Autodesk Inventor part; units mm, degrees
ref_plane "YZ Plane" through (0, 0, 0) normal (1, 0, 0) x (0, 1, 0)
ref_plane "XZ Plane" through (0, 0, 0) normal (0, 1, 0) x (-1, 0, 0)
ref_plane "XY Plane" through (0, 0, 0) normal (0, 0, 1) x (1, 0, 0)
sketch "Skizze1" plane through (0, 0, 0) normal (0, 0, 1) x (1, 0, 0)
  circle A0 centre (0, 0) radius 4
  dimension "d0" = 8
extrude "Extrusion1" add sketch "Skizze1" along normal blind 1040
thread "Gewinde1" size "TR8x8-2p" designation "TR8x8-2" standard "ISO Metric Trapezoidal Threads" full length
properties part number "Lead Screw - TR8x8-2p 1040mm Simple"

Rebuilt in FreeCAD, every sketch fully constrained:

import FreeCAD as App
import Part
import Sketcher

V = App.Vector
Q = App.Units.Quantity

doc = App.newDocument("Part")
params = doc.addObject("Spreadsheet::Sheet", "Params")
for row, (alias, value) in enumerate([
    ("sketch1_diameter", "8 mm"),
    ("pad1_length", "1040 mm"),
], start=1):
    params.set(f"A{row}", alias)
    params.set(f"B{row}", "=" + value)
    params.setAlias(f"B{row}", alias)

body = doc.addObject("PartDesign::Body", "Body")

sketch1 = body.newObject("Sketcher::SketchObject", "Sketch")
sketch1.AttachmentSupport = (doc.getObject("XY_Plane"), [""])
sketch1.MapMode = "FlatFace"
sketch1.addGeometry(Part.Circle(V(0, 0, 0), V(0, 0, 1), 4), False)
sketch1.addConstraint([
    Sketcher.Constraint("Coincident", 0, 3, -1, 1),
    Sketcher.Constraint("Diameter", 0, Q("8 mm")),
])
sketch1.setExpression("Constraints[1]", "Params.sketch1_diameter")
pad1 = body.newObject("PartDesign::Pad", "Pad")
pad1.Profile = sketch1
pad1.setExpression("Length", "Params.pad1_length")

doc.recompute()
